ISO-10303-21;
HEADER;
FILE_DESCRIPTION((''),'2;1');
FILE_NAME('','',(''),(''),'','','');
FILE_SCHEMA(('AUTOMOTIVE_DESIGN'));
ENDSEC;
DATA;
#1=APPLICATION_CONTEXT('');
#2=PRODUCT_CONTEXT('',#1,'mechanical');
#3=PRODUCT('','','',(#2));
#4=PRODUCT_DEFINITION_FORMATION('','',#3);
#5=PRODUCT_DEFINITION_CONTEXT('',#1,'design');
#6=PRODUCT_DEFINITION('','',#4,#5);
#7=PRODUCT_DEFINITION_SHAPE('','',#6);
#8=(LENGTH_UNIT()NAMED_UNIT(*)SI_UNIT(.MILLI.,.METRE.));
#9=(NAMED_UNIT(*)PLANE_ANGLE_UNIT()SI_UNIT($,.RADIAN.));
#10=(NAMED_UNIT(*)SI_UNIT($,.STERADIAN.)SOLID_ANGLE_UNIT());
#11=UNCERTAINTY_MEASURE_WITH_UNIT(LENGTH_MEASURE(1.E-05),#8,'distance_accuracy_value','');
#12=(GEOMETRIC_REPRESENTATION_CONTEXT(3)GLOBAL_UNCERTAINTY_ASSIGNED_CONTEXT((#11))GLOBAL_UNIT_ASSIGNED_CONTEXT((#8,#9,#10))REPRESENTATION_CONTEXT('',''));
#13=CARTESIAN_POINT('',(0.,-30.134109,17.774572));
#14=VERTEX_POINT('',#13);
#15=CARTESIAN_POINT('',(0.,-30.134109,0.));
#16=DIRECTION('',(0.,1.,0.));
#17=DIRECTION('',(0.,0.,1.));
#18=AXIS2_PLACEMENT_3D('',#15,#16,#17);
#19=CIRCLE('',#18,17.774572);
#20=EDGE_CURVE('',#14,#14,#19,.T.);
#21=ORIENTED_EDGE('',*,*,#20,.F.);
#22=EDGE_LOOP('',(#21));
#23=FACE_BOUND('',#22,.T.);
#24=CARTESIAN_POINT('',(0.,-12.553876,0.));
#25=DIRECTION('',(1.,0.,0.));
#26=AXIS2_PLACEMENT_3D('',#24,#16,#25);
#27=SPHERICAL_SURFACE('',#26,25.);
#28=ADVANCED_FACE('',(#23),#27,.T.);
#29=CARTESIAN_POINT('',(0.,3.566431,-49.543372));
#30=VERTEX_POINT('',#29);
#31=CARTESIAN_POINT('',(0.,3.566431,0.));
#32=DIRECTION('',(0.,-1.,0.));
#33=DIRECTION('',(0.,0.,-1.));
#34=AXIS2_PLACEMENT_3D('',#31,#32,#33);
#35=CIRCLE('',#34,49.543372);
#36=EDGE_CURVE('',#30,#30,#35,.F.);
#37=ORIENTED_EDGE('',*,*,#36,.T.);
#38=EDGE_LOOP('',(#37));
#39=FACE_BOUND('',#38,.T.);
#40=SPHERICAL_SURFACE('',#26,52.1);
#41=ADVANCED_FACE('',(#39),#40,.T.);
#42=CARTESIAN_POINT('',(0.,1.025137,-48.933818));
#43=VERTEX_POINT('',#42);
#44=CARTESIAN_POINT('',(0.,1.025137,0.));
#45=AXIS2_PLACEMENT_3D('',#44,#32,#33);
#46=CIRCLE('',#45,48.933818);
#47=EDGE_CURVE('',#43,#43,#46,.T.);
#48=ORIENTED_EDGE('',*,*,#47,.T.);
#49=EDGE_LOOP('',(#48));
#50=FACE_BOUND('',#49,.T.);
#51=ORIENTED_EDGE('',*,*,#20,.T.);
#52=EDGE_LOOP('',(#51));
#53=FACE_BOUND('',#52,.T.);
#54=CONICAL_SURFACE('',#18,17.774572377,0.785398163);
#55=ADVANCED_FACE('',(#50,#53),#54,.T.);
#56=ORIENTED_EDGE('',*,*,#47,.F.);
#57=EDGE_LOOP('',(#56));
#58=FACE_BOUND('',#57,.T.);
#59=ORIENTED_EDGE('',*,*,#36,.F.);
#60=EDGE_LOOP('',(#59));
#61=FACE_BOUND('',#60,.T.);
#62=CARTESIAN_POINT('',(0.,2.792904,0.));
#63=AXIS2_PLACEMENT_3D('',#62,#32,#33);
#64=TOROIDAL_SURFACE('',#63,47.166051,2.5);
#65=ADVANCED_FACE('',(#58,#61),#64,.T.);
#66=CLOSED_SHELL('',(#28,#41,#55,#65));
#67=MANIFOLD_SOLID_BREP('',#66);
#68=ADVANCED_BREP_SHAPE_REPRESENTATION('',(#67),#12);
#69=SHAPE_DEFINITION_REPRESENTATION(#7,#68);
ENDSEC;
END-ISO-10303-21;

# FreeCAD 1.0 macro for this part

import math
import FreeCAD as App
import Part
import Sketcher

V = App.Vector
Q = App.Units.Quantity


def edges_at(feature, points):
    """Names of the edges that pass closest to the given points."""
    edges = feature.Shape.Edges
    near = lambda p: min(range(len(edges)), key=lambda i: edges[i].distToShape(Part.Vertex(*p))[0])
    return sorted({f"Edge{near(p) + 1}" for p in points})

doc = App.newDocument("Part")
body = doc.addObject("PartDesign::Body", "Body")

# Sketch on XY plane
sketch1 = body.newObject("Sketcher::SketchObject", "Sketch")
sketch1.AttachmentSupport = (doc.getObject("XY_Plane"), [""])
sketch1.MapMode = "FlatFace"
sketch1.addGeometry(Part.LineSegment(V(0, 39.546124, 0), V(0, -37.553876, 0)), False)
sketch1.addGeometry(Part.ArcOfCircle(Part.Circle(V(0, -12.553876, 0), V(0, 0, 1), 25), math.radians(-90), math.radians(-44.685057)), False)
sketch1.addGeometry(Part.LineSegment(V(17.774572, -30.134109, 0), V(49.999445, 2.090764, 0)), False)
sketch1.addGeometry(Part.ArcOfCircle(Part.Circle(V(0, -12.553876, 0), V(0, 0, 1), 52.1), math.radians(16.3251), math.radians(90)), False)
sketch1.addConstraint(Sketcher.Constraint("Coincident", 0, 2, 1, 1))
sketch1.addConstraint(Sketcher.Constraint("Coincident", 1, 2, 2, 1))
sketch1.addConstraint(Sketcher.Constraint("Coincident", 2, 2, 3, 1))
sketch1.addConstraint(Sketcher.Constraint("Coincident", 3, 2, 0, 1))
sketch1.addConstraint(Sketcher.Constraint("Vertical", 0))
sketch1.addConstraint(Sketcher.Constraint("Coincident", 3, 3, 1, 3))
sketch1.addConstraint(Sketcher.Constraint("PointOnObject", 1, 3, -2))
sketch1.addConstraint(Sketcher.Constraint("PointOnObject", 0, 2, -2))
sketch1.addConstraint(Sketcher.Constraint("Radius", 1, Q("25 mm")))
sketch1.addConstraint(Sketcher.Constraint("Radius", 3, Q("52.1 mm")))
sketch1.addConstraint(Sketcher.Constraint("DistanceY", 1, 2, -1, 1, Q("30.134109 mm")))
sketch1.addConstraint(Sketcher.Constraint("DistanceY", 3, 3, 2, 2, Q("14.64464 mm")))
sketch1.addConstraint(Sketcher.Constraint("Distance", 2, Q("45.572852 mm")))
revolution = body.newObject("PartDesign::Revolution", "Revolution")
revolution.Profile = sketch1
revolution.ReferenceAxis = (sketch1, ["V_Axis"])
revolution.Angle = 360
doc.recompute()

fillet = body.newObject("PartDesign::Fillet", "Fillet")
fillet.Base = (revolution, edges_at(revolution, [(-49.999, 2.091, 0)]))
fillet.Radius = 2.5

doc.recompute()
